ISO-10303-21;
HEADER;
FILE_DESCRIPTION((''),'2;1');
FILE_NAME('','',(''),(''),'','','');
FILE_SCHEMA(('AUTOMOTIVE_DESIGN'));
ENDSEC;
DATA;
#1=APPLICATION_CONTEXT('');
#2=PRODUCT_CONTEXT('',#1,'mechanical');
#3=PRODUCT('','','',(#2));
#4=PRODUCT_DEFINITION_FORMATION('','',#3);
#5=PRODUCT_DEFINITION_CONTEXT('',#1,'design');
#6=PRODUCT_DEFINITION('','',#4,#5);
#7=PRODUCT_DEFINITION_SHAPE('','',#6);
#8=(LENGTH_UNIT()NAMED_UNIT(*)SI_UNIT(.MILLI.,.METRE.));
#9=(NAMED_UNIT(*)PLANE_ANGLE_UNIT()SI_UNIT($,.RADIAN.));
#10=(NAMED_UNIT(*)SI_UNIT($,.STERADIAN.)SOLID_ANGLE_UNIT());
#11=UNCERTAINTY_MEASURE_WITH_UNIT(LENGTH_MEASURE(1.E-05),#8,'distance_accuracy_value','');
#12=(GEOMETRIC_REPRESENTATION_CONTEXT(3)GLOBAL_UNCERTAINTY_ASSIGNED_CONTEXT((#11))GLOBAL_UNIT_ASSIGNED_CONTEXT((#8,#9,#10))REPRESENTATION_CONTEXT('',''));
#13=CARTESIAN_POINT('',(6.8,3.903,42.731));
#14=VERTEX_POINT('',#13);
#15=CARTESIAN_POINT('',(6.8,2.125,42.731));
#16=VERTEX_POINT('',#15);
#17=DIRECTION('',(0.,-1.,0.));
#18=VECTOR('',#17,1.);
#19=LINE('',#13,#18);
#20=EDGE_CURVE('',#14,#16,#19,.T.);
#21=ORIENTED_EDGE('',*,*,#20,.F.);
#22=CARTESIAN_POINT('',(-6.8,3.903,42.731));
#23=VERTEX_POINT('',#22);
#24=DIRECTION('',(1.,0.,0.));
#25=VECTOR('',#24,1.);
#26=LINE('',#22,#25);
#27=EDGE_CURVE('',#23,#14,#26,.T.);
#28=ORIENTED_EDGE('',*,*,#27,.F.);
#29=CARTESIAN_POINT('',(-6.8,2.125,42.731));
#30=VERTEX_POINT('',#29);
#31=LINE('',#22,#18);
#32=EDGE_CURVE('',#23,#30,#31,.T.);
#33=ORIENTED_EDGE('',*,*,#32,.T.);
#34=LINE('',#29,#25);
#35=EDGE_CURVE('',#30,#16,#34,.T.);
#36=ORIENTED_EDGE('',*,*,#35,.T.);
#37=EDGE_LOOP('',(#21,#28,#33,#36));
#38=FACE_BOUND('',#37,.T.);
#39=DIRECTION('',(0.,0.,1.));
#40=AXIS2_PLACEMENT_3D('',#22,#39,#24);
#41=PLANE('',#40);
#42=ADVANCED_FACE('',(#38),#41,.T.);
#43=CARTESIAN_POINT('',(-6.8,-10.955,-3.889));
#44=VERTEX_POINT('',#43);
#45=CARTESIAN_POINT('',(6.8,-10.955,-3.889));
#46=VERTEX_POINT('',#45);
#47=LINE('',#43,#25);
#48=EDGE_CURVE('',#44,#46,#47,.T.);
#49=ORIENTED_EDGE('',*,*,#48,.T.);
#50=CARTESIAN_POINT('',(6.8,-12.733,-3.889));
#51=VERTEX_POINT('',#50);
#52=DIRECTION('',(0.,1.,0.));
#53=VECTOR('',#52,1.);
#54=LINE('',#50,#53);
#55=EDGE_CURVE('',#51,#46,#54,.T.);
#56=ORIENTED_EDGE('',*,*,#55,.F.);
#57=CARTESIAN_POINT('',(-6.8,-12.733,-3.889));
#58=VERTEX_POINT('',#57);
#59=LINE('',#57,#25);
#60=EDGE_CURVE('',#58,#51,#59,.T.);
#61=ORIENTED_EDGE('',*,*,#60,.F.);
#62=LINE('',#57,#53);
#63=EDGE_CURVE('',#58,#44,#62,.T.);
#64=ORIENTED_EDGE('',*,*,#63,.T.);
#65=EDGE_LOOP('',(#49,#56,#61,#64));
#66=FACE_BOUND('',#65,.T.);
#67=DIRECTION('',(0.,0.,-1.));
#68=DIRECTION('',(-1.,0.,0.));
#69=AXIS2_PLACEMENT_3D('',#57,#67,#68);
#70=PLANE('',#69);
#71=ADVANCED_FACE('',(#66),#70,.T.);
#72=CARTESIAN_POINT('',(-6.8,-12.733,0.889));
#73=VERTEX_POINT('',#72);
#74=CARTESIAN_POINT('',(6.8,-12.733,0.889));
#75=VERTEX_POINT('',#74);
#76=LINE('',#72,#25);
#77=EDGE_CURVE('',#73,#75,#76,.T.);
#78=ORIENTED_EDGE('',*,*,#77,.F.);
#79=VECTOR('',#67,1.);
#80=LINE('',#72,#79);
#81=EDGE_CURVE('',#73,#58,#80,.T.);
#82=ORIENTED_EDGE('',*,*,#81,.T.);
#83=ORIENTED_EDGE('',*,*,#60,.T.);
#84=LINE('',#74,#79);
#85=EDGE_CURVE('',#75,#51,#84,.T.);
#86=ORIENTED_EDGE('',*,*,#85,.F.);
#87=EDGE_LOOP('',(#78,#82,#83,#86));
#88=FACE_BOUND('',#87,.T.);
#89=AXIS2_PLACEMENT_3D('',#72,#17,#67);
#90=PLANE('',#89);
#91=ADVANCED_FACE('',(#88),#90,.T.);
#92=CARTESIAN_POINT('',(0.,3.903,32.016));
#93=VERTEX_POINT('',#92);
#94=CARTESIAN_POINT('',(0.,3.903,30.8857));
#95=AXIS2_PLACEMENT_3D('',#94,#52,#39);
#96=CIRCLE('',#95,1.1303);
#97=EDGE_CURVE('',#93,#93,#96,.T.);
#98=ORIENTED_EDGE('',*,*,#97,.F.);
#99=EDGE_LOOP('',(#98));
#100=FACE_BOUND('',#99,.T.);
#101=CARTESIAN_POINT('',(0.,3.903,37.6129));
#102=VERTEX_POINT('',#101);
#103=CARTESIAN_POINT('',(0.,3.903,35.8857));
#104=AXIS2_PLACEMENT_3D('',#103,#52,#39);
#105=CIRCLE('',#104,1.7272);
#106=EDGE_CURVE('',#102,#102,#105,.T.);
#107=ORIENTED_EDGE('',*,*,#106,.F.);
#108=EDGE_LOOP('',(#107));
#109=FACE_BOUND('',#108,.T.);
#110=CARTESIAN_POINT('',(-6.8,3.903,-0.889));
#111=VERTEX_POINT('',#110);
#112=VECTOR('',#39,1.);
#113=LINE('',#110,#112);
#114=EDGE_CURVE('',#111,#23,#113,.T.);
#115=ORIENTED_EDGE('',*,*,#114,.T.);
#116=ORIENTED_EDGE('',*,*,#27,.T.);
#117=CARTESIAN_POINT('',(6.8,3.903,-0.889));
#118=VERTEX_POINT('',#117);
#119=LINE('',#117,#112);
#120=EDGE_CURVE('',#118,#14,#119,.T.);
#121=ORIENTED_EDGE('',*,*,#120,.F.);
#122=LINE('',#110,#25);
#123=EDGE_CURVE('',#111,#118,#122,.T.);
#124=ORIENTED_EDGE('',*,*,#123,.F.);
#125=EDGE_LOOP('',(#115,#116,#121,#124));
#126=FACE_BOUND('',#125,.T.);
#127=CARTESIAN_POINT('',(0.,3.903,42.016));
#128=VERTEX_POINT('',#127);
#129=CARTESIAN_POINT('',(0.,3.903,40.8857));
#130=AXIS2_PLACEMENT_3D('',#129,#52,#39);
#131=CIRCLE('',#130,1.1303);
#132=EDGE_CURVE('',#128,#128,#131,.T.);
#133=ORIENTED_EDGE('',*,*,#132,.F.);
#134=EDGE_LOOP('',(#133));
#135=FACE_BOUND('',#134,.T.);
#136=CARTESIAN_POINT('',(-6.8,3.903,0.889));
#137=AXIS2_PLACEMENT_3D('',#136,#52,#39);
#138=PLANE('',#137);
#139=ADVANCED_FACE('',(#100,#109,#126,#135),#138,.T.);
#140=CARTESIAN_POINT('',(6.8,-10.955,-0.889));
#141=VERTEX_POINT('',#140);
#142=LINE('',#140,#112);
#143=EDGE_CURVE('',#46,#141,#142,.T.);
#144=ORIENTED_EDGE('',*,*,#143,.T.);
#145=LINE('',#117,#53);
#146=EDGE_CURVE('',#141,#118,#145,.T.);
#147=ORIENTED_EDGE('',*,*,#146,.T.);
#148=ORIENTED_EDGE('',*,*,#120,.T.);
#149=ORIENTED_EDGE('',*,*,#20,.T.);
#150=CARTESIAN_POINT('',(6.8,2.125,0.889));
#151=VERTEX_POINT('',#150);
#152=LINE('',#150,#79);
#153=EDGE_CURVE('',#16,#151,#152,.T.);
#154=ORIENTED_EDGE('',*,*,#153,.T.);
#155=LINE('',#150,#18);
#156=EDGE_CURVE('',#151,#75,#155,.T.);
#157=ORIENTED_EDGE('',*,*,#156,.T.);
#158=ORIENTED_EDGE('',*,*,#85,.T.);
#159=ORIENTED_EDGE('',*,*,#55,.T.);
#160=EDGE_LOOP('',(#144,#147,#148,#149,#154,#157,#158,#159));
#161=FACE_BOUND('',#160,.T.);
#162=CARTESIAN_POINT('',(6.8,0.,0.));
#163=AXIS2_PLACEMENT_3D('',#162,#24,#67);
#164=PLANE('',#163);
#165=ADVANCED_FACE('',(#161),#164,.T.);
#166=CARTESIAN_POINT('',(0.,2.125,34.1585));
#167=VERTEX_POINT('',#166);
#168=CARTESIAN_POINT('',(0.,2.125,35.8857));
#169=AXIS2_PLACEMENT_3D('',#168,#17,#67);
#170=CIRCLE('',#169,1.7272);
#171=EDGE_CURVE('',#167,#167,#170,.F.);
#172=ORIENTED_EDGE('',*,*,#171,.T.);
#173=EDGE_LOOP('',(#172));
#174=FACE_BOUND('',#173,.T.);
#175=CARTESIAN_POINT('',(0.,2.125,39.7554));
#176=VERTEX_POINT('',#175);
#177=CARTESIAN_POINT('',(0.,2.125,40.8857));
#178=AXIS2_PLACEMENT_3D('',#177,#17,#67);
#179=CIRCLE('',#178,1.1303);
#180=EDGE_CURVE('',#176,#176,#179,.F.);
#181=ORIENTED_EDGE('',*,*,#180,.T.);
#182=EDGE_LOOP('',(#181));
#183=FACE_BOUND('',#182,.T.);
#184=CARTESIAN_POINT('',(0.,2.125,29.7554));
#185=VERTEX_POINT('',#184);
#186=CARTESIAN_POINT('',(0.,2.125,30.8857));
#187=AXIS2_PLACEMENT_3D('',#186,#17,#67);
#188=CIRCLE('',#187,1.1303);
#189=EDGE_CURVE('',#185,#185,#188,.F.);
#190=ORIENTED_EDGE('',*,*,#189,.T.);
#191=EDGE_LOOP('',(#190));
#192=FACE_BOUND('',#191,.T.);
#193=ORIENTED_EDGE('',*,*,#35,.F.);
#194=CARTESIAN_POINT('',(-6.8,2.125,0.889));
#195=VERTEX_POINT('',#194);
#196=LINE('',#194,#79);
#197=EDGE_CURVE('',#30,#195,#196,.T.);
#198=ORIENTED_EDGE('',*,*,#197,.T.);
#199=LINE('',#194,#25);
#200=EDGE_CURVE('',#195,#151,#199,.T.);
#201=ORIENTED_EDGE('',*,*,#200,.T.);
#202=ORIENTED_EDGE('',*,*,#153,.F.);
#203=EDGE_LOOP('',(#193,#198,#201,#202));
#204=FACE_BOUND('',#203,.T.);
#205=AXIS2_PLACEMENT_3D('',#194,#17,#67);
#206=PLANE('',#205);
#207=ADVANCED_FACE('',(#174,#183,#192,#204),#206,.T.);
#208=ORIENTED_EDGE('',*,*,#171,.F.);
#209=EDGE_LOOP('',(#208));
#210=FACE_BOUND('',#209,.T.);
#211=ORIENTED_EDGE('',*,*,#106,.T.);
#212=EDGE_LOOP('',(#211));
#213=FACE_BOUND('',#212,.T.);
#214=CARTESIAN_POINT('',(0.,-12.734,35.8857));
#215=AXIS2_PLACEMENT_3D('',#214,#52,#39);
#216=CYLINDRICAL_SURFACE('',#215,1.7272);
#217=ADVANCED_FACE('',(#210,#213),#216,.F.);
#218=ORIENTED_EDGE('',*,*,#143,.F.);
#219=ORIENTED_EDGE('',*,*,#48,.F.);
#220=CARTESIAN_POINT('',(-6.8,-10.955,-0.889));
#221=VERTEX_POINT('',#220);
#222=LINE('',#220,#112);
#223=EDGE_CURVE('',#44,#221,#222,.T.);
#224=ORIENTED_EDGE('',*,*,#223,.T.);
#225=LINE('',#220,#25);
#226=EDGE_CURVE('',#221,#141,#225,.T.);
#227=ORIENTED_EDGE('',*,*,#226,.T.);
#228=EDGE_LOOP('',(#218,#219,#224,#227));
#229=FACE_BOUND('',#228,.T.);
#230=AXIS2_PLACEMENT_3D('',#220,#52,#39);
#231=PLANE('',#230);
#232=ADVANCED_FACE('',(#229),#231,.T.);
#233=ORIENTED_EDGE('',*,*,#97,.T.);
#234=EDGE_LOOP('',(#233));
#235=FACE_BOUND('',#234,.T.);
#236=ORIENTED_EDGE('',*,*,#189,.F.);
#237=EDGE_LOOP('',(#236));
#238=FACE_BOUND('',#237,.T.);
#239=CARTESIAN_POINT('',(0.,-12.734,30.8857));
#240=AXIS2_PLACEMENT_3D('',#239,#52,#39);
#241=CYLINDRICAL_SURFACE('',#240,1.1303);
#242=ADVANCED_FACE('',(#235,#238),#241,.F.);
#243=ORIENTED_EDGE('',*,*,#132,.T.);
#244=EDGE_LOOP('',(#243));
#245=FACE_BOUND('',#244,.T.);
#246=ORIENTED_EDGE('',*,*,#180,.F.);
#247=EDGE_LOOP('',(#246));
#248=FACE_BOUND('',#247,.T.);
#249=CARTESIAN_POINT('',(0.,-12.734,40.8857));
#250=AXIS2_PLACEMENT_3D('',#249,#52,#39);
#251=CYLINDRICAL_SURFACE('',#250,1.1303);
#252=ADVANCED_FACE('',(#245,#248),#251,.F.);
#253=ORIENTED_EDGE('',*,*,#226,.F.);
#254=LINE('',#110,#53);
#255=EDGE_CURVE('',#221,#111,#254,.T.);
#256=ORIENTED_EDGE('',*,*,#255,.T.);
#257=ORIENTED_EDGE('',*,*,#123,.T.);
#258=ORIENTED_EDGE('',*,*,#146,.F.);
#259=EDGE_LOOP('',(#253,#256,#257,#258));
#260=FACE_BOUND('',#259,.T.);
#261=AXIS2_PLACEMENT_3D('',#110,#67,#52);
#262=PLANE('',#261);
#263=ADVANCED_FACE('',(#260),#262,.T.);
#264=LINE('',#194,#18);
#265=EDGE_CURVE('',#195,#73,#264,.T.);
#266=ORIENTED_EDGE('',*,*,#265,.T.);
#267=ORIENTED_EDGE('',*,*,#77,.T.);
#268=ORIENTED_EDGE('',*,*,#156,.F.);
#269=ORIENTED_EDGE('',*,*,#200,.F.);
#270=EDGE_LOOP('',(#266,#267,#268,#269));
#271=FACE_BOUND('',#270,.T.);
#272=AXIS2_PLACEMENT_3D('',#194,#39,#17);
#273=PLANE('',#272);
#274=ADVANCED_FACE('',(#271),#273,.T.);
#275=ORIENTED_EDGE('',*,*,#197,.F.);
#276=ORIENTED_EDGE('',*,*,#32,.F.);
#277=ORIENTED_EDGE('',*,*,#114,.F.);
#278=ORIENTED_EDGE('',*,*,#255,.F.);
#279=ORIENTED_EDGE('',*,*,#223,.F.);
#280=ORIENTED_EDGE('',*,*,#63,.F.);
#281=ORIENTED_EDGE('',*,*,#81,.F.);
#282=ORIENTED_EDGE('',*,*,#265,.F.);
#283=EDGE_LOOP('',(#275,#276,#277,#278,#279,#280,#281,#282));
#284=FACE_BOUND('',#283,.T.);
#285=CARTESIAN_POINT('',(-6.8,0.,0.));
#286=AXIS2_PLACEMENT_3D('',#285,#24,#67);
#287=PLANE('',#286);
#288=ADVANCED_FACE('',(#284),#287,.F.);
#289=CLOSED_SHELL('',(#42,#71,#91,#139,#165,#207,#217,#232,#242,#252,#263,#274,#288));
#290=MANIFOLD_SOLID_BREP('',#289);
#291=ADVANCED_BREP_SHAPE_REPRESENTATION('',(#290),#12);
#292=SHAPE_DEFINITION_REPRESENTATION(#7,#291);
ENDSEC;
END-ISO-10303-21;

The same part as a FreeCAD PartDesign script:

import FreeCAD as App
import Part
import Sketcher

V = App.Vector
Q = App.Units.Quantity

doc = App.newDocument("Part")
body = doc.addObject("PartDesign::Body", "Body")

# Sketch on YZ plane
sketch1 = body.newObject("Sketcher::SketchObject", "Sketch")
sketch1.AttachmentSupport = (doc.getObject("YZ_Plane"), [""])
sketch1.MapMode = "FlatFace"
sketch1.addGeometry(Part.LineSegment(V(3.903, -0.889, 0), V(3.903, 42.731, 0)), False)
sketch1.addGeometry(Part.LineSegment(V(3.903, 42.731, 0), V(2.125, 42.731, 0)), False)
sketch1.addGeometry(Part.LineSegment(V(2.125, 42.731, 0), V(2.125, 0.889, 0)), False)
sketch1.addGeometry(Part.LineSegment(V(2.125, 0.889, 0), V(-12.733, 0.889, 0)), False)
sketch1.addGeometry(Part.LineSegment(V(-12.733, 0.889, 0), V(-12.733, -3.889, 0)), False)
sketch1.addGeometry(Part.LineSegment(V(-12.733, -3.889, 0), V(-10.955, -3.889, 0)), False)
sketch1.addGeometry(Part.LineSegment(V(-10.955, -3.889, 0), V(-10.955, -0.889, 0)), False)
sketch1.addGeometry(Part.LineSegment(V(-10.955, -0.889, 0), V(3.903, -0.889, 0)), False)
sketch1.addConstraint(Sketcher.Constraint("Coincident", 0, 2, 1, 1))
sketch1.addConstraint(Sketcher.Constraint("Coincident", 1, 2, 2, 1))
sketch1.addConstraint(Sketcher.Constraint("Coincident", 2, 2, 3, 1))
sketch1.addConstraint(Sketcher.Constraint("Coincident", 3, 2, 4, 1))
sketch1.addConstraint(Sketcher.Constraint("Coincident", 4, 2, 5, 1))
sketch1.addConstraint(Sketcher.Constraint("Coincident", 5, 2, 6, 1))
sketch1.addConstraint(Sketcher.Constraint("Coincident", 6, 2, 7, 1))
sketch1.addConstraint(Sketcher.Constraint("Coincident", 7, 2, 0, 1))
sketch1.addConstraint(Sketcher.Constraint("Vertical", 0))
sketch1.addConstraint(Sketcher.Constraint("Horizontal", 1))
sketch1.addConstraint(Sketcher.Constraint("Vertical", 2))
sketch1.addConstraint(Sketcher.Constraint("Horizontal", 3))
sketch1.addConstraint(Sketcher.Constraint("Vertical", 4))
sketch1.addConstraint(Sketcher.Constraint("Horizontal", 5))
sketch1.addConstraint(Sketcher.Constraint("Vertical", 6))
sketch1.addConstraint(Sketcher.Constraint("Horizontal", 7))
sketch1.addConstraint(Sketcher.Constraint("Equal", 1, 5))
sketch1.addConstraint(Sketcher.Constraint("DistanceX", 1, 2, 1, 1, Q("0.07 in")))
sketch1.addConstraint(Sketcher.Constraint("DistanceY", 6, 2, 3, 2, Q("0.07 in")))
sketch1.addConstraint(Sketcher.Constraint("DistanceY", -1, 1, 2, 2, Q("0.035 in")))
sketch1.addConstraint(Sketcher.Constraint("DistanceX", 3, 2, 3, 1, 14.858))
sketch1.addConstraint(Sketcher.Constraint("DistanceY", 0, 1, 0, 2, 43.62))
sketch1.addConstraint(Sketcher.Constraint("DistanceY", 4, 2, 4, 1, 4.778))
sketch1.addConstraint(Sketcher.Constraint("DistanceX", -1, 1, 0, 2, 3.903))
pad1 = body.newObject("PartDesign::Pad", "Pad")
pad1.Profile = sketch1
pad1.Type = "TwoLengths"
pad1.Length = 6.8
pad1.Length2 = 6.8

# Sketch on XZ plane
sketch2 = body.newObject("Sketcher::SketchObject", "Sketch001")
sketch2.AttachmentSupport = (doc.getObject("XZ_Plane"), [""])
sketch2.MapMode = "FlatFace"
sketch2.AttachmentOffset = App.Placement(V(0, 0, -3.903), App.Rotation())
sketch2.addGeometry(Part.Circle(V(0, 40.8857, 0), V(0, 0, 1), 1.1303), False)
sketch2.addConstraint(Sketcher.Constraint("PointOnObject", 0, 3, -2))
sketch2.addConstraint(Sketcher.Constraint("Diameter", 0, Q("0.089 in")))
sketch2.addConstraint(Sketcher.Constraint("DistanceY", -1, 1, 0, 3, 40.8857))
pocket1 = body.newObject("PartDesign::Pocket", "Pocket")
pocket1.Profile = sketch2
pocket1.Type = "UpToFirst"
pocket1.Reversed = True

# Sketch on XZ plane
sketch3 = body.newObject("Sketcher::SketchObject", "Sketch002")
sketch3.AttachmentSupport = (doc.getObject("XZ_Plane"), [""])
sketch3.MapMode = "FlatFace"
sketch3.AttachmentOffset = App.Placement(V(0, 0, -3.903), App.Rotation())
sketch3.addGeometry(Part.Circle(V(0, 35.8857, 0), V(0, 0, 1), 1.7272), False)
sketch3.addConstraint(Sketcher.Constraint("PointOnObject", 0, 3, -2))
sketch3.addConstraint(Sketcher.Constraint("Diameter", 0, Q("0.136 in")))
sketch3.addConstraint(Sketcher.Constraint("DistanceY", -1, 1, 0, 3, 35.8857))
pocket2 = body.newObject("PartDesign::Pocket", "Pocket001")
pocket2.Profile = sketch3
pocket2.Type = "UpToFirst"
pocket2.Reversed = True

# Sketch on XZ plane
sketch4 = body.newObject("Sketcher::SketchObject", "Sketch003")
sketch4.AttachmentSupport = (doc.getObject("XZ_Plane"), [""])
sketch4.MapMode = "FlatFace"
sketch4.AttachmentOffset = App.Placement(V(0, 0, -3.903), App.Rotation())
sketch4.addGeometry(Part.Circle(V(0, 30.8857, 0), V(0, 0, 1), 1.1303), False)
sketch4.addConstraint(Sketcher.Constraint("PointOnObject", 0, 3, -2))
sketch4.addConstraint(Sketcher.Constraint("Diameter", 0, Q("0.089 in")))
sketch4.addConstraint(Sketcher.Constraint("DistanceY", -1, 1, 0, 3, 30.8857))
pocket3 = body.newObject("PartDesign::Pocket", "Pocket002")
pocket3.Profile = sketch4
pocket3.Type = "UpToFirst"
pocket3.Reversed = True

doc.recompute()
